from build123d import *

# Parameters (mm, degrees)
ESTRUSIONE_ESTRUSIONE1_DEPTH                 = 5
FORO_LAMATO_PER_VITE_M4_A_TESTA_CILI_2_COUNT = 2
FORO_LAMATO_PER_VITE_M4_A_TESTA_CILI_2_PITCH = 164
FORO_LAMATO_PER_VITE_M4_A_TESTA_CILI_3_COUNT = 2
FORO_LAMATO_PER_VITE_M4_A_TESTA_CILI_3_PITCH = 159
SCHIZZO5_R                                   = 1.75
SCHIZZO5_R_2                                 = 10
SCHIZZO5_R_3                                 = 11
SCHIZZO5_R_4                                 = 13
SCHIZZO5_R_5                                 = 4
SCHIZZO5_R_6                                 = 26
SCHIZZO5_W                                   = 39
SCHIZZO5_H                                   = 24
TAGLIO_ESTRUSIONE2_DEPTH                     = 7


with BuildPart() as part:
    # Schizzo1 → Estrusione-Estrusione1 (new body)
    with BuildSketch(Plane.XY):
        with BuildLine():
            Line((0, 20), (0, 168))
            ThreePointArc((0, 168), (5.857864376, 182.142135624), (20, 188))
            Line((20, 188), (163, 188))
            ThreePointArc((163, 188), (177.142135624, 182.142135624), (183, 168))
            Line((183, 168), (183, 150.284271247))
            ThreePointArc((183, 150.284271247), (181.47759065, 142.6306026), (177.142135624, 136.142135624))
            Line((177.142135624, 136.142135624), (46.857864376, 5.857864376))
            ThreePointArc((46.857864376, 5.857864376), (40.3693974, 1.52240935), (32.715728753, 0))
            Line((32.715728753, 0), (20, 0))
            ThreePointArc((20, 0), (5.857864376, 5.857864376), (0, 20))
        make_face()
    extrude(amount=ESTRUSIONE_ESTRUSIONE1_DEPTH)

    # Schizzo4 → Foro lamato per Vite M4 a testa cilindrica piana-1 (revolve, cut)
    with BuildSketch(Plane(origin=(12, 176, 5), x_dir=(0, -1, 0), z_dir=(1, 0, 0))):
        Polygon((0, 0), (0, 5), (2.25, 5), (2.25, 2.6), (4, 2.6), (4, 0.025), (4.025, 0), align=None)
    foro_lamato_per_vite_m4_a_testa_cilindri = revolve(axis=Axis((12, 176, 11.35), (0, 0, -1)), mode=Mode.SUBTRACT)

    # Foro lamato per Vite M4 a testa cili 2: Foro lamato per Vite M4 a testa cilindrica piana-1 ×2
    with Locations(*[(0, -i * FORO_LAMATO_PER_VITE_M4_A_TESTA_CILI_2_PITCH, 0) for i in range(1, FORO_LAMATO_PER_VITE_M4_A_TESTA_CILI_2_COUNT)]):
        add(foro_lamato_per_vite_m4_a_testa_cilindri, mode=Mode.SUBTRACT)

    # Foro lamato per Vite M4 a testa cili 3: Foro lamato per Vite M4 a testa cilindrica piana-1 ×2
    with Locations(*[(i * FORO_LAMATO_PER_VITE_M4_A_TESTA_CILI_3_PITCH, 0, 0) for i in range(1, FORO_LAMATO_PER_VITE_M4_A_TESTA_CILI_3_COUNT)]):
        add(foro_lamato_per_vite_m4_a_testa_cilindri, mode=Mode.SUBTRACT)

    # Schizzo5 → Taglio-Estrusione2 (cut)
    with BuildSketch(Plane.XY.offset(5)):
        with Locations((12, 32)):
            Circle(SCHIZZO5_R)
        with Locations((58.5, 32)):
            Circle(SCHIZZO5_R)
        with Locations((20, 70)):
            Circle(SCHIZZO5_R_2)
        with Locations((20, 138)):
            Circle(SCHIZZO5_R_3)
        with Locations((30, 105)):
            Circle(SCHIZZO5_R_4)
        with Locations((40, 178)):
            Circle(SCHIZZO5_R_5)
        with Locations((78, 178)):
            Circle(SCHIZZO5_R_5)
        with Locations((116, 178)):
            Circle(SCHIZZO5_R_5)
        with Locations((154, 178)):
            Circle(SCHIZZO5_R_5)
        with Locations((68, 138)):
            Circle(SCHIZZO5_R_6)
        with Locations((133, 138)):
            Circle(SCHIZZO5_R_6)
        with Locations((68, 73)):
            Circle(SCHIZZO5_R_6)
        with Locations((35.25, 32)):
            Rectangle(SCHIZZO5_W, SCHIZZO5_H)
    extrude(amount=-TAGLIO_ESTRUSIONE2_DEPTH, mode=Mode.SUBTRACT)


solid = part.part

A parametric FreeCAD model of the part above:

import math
import FreeCAD as App
import Part
import Sketcher
Q = App.Units.Quantity

doc = App.newDocument("Part")
params = doc.addObject("Spreadsheet::Sheet", "Params")
for row, (alias, value) in enumerate([
    ("sketch1_radius", "20 mm"),
    ("sketch1_width", "143 mm"),
    ("sketch1_height", "148 mm"),
    ("pad1_length", "5 mm"),
    ("sketch2_height", "5 mm"),
    ("sketch2_height2", "2.4 mm"),
    ("sketch2_width", "1.75 mm"),
    ("groove_angle", "360 deg"),
    ("linearpattern_pitch", "164 mm"),
    ("linearpattern2_pitch", "159 mm"),
    ("sketch3_diameter", "20 mm"),
    ("sketch3_diameter2", "22 mm"),
    ("sketch3_diameter3", "26 mm"),
    ("sketch3_diameter4", "8 mm"),
    ("sketch3_diameter5", "52 mm"),
    ("pocket1_length", "7 mm"),
], start=1):
    params.set(f"A{row}", alias)
    params.set(f"B{row}", "=" + value)
    params.setAlias(f"B{row}", alias)

body = doc.addObject("PartDesign::Body", "Body")

sketch1 = body.newObject("Sketcher::SketchObject", "Sketch")
sketch1.AttachmentSupport = (doc.getObject("XY_Plane"), [""])
sketch1.MapMode = "FlatFace"
sketch1.addGeometry(Part.LineSegment(App.Vector(0, 168, 0), App.Vector(0, 20, 0)), False)
sketch1.addGeometry(Part.ArcOfCircle(Part.Circle(App.Vector(20, 20, 0), App.Vector(0, 0, 1), 20), math.radians(180), math.radians(270)), False)
sketch1.addGeometry(Part.LineSegment(App.Vector(20, 0, 0), App.Vector(32.715729, 0, 0)), False)
sketch1.addGeometry(Part.ArcOfCircle(Part.Circle(App.Vector(32.715729, 20, 0), App.Vector(0, 0, 1), 20), math.radians(-90), math.radians(-45)), False)
sketch1.addGeometry(Part.LineSegment(App.Vector(46.857864, 5.857864, 0), App.Vector(177.142136, 136.142136, 0)), False)
sketch1.addGeometry(Part.ArcOfCircle(Part.Circle(App.Vector(163, 150.284271, 0), App.Vector(0, 0, 1), 20), math.radians(-45), math.radians(0)), False)
sketch1.addGeometry(Part.LineSegment(App.Vector(183, 150.284271, 0), App.Vector(183, 168, 0)), False)
sketch1.addGeometry(Part.ArcOfCircle(Part.Circle(App.Vector(163, 168, 0), App.Vector(0, 0, 1), 20), math.radians(0), math.radians(90)), False)
sketch1.addGeometry(Part.LineSegment(App.Vector(163, 188, 0), App.Vector(20, 188, 0)), False)
sketch1.addGeometry(Part.ArcOfCircle(Part.Circle(App.Vector(20, 168, 0), App.Vector(0, 0, 1), 20), math.radians(90), math.radians(180)), False)
sketch1.addConstraint(Sketcher.Constraint("Tangent", 0, 2, 1, 1))
sketch1.addConstraint(Sketcher.Constraint("Tangent", 1, 2, 2, 1))
sketch1.addConstraint(Sketcher.Constraint("Tangent", 2, 2, 3, 1))
sketch1.addConstraint(Sketcher.Constraint("Tangent", 3, 2, 4, 1))
sketch1.addConstraint(Sketcher.Constraint("Tangent", 4, 2, 5, 1))
sketch1.addConstraint(Sketcher.Constraint("Tangent", 5, 2, 6, 1))
sketch1.addConstraint(Sketcher.Constraint("Tangent", 6, 2, 7, 1))
sketch1.addConstraint(Sketcher.Constraint("Tangent", 7, 2, 8, 1))
sketch1.addConstraint(Sketcher.Constraint("Tangent", 8, 2, 9, 1))
sketch1.addConstraint(Sketcher.Constraint("Tangent", 9, 2, 0, 1))
sketch1.addConstraint(Sketcher.Constraint("Vertical", 0))
sketch1.addConstraint(Sketcher.Constraint("Horizontal", 2))
sketch1.addConstraint(Sketcher.Constraint("Vertical", 6))
sketch1.addConstraint(Sketcher.Constraint("Horizontal", 8))
sketch1.addConstraint(Sketcher.Constraint("Equal", 1, 3))
sketch1.addConstraint(Sketcher.Constraint("Equal", 3, 5))
sketch1.addConstraint(Sketcher.Constraint("Equal", 5, 7))
sketch1.addConstraint(Sketcher.Constraint("Equal", 7, 9))
sketch1.addConstraint(Sketcher.Constraint("PointOnObject", 0, 2, -2))
sketch1.addConstraint(Sketcher.Constraint("PointOnObject", 1, 2, -1))
sketch1.addConstraint(Sketcher.Constraint("Radius", 1, Q("20 mm")))
sketch1.addConstraint(Sketcher.Constraint("DistanceX", 8, 2, 8, 1, Q("143 mm")))
sketch1.addConstraint(Sketcher.Constraint("DistanceY", 0, 2, 0, 1, Q("148 mm")))
sketch1.addConstraint(Sketcher.Constraint("Angle", 4, Q("45 deg")))
sketch1.addConstraint(Sketcher.Constraint("DistanceX", 2, 1, 2, 2, Q("12.715729 mm")))
sketch1.setExpression("Constraints[20]", "Params.sketch1_radius")
sketch1.setExpression("Constraints[21]", "Params.sketch1_width")
sketch1.setExpression("Constraints[22]", "Params.sketch1_height")
pad1 = body.newObject("PartDesign::Pad", "Pad")
pad1.Profile = sketch1
pad1.setExpression("Length", "Params.pad1_length")

sketch2 = body.newObject("Sketcher::SketchObject", "Sketch001")
sketch2.AttachmentSupport = (doc.getObject("YZ_Plane"), [""])
sketch2.MapMode = "FlatFace"
sketch2.AttachmentOffset = App.Placement(App.Vector(0, 0, 12), App.Rotation())
sketch2.addGeometry(Part.LineSegment(App.Vector(176, 0, 0), App.Vector(176, 5, 0)), False)
sketch2.addGeometry(Part.LineSegment(App.Vector(176, 5, 0), App.Vector(171.975, 5, 0)), False)
sketch2.addGeometry(Part.LineSegment(App.Vector(171.975, 5, 0), App.Vector(172, 4.975, 0)), False)
sketch2.addGeometry(Part.LineSegment(App.Vector(172, 4.975, 0), App.Vector(172, 2.4, 0)), False)
sketch2.addGeometry(Part.LineSegment(App.Vector(172, 2.4, 0), App.Vector(173.75, 2.4, 0)), False)
sketch2.addGeometry(Part.LineSegment(App.Vector(173.75, 2.4, 0), App.Vector(173.75, 0, 0)), False)
sketch2.addGeometry(Part.LineSegment(App.Vector(173.75, 0, 0), App.Vector(176, 0, 0)), False)
sketch2.addGeometry(Part.LineSegment(App.Vector(176, 5, 0), App.Vector(176, 0, 0)), True)
sketch2.addConstraint(Sketcher.Constraint("Coincident", 0, 2, 1, 1))
sketch2.addConstraint(Sketcher.Constraint("Coincident", 1, 2, 2, 1))
sketch2.addConstraint(Sketcher.Constraint("Coincident", 2, 2, 3, 1))
sketch2.addConstraint(Sketcher.Constraint("Coincident", 3, 2, 4, 1))
sketch2.addConstraint(Sketcher.Constraint("Coincident", 4, 2, 5, 1))
sketch2.addConstraint(Sketcher.Constraint("Coincident", 5, 2, 6, 1))
sketch2.addConstraint(Sketcher.Constraint("Coincident", 6, 2, 0, 1))
sketch2.addConstraint(Sketcher.Constraint("Vertical", 0))
sketch2.addConstraint(Sketcher.Constraint("Horizontal", 1))
sketch2.addConstraint(Sketcher.Constraint("Vertical", 3))
sketch2.addConstraint(Sketcher.Constraint("Horizontal", 4))
sketch2.addConstraint(Sketcher.Constraint("Vertical", 5))
sketch2.addConstraint(Sketcher.Constraint("Horizontal", 6))
sketch2.addConstraint(Sketcher.Constraint("Vertical", 7))
sketch2.addConstraint(Sketcher.Constraint("Coincident", 7, 1, 0, 2))
sketch2.addConstraint(Sketcher.Constraint("PointOnObject", 5, 2, -1))
sketch2.addConstraint(Sketcher.Constraint("PointOnObject", 7, 2, -1))
sketch2.addConstraint(Sketcher.Constraint("DistanceY", 0, 1, 0, 2, Q("5 mm")))
sketch2.addConstraint(Sketcher.Constraint("Angle", 2, Q("-45 deg")))
sketch2.addConstraint(Sketcher.Constraint("DistanceY", 5, 2, 5, 1, Q("2.4 mm")))
sketch2.addConstraint(Sketcher.Constraint("DistanceX", -1, 1, 0, 2, Q("176 mm")))
sketch2.addConstraint(Sketcher.Constraint("DistanceX", -1, 1, 2, 2, Q("172 mm")))
sketch2.addConstraint(Sketcher.Constraint("DistanceX", 4, 1, 4, 2, Q("1.75 mm")))
sketch2.addConstraint(Sketcher.Constraint("DistanceX", 1, 2, 1, 1, Q("4.025 mm")))
sketch2.setExpression("Constraints[17]", "Params.sketch2_height")
sketch2.setExpression("Constraints[19]", "Params.sketch2_height2")
sketch2.setExpression("Constraints[22]", "Params.sketch2_width")
groove = body.newObject("PartDesign::Groove", "Groove")
groove.Profile = sketch2
groove.ReferenceAxis = (sketch2, ["Axis0"])
groove.setExpression("Angle", "Params.groove_angle")
doc.recompute()

linearpattern = body.newObject("PartDesign::LinearPattern", "LinearPattern")
linearpattern.Originals = [groove]
linearpattern.Direction = (doc.getObject("Y_Axis"), [""])
linearpattern.Mode = "offset"
linearpattern.setExpression("Offset", "Params.linearpattern_pitch")
linearpattern.Occurrences = 2
linearpattern.Reversed = True
body.Tip = linearpattern
doc.recompute()

linearpattern2 = body.newObject("PartDesign::LinearPattern", "LinearPattern001")
linearpattern2.Originals = [groove]
linearpattern2.Direction = (doc.getObject("X_Axis"), [""])
linearpattern2.Mode = "offset"
linearpattern2.setExpression("Offset", "Params.linearpattern2_pitch")
linearpattern2.Occurrences = 2
body.Tip = linearpattern2

sketch3 = body.newObject("Sketcher::SketchObject", "Sketch002")
sketch3.AttachmentSupport = (doc.getObject("XY_Plane"), [""])
sketch3.MapMode = "FlatFace"
sketch3.AttachmentOffset = App.Placement(App.Vector(0, 0, 5), App.Rotation())
sketch3.addGeometry(Part.Circle(App.Vector(12, 32, 0), App.Vector(0, 0, 1), 1.75), False)
sketch3.addGeometry(Part.Circle(App.Vector(58.5, 32, 0), App.Vector(0, 0, 1), 1.75), False)
sketch3.addGeometry(Part.Circle(App.Vector(20, 70, 0), App.Vector(0, 0, 1), 10), False)
sketch3.addGeometry(Part.Circle(App.Vector(20, 138, 0), App.Vector(0, 0, 1), 11), False)
sketch3.addGeometry(Part.Circle(App.Vector(30, 105, 0), App.Vector(0, 0, 1), 13), False)
sketch3.addGeometry(Part.Circle(App.Vector(40, 178, 0), App.Vector(0, 0, 1), 4), False)
sketch3.addGeometry(Part.Circle(App.Vector(78, 178, 0), App.Vector(0, 0, 1), 4), False)
sketch3.addGeometry(Part.Circle(App.Vector(116, 178, 0), App.Vector(0, 0, 1), 4), False)
sketch3.addGeometry(Part.Circle(App.Vector(154, 178, 0), App.Vector(0, 0, 1), 4), False)
sketch3.addGeometry(Part.Circle(App.Vector(68, 138, 0), App.Vector(0, 0, 1), 26), False)
sketch3.addGeometry(Part.Circle(App.Vector(133, 138, 0), App.Vector(0, 0, 1), 26), False)
sketch3.addGeometry(Part.Circle(App.Vector(68, 73, 0), App.Vector(0, 0, 1), 26), False)
sketch3.addGeometry(Part.LineSegment(App.Vector(15.75, 44, 0), App.Vector(15.75, 20, 0)), False)
sketch3.addGeometry(Part.LineSegment(App.Vector(15.75, 20, 0), App.Vector(54.75, 20, 0)), False)
sketch3.addGeometry(Part.LineSegment(App.Vector(54.75, 20, 0), App.Vector(54.75, 44, 0)), False)
sketch3.addGeometry(Part.LineSegment(App.Vector(54.75, 44, 0), App.Vector(15.75, 44, 0)), False)
sketch3.addConstraint(Sketcher.Constraint("Coincident", 12, 2, 13, 1))
sketch3.addConstraint(Sketcher.Constraint("Coincident", 13, 2, 14, 1))
sketch3.addConstraint(Sketcher.Constraint("Coincident", 14, 2, 15, 1))
sketch3.addConstraint(Sketcher.Constraint("Coincident", 15, 2, 12, 1))
sketch3.addConstraint(Sketcher.Constraint("Vertical", 12))
sketch3.addConstraint(Sketcher.Constraint("Horizontal", 13))
sketch3.addConstraint(Sketcher.Constraint("Vertical", 14))
sketch3.addConstraint(Sketcher.Constraint("Horizontal", 15))
sketch3.addConstraint(Sketcher.Constraint("Equal", 0, 1))
sketch3.addConstraint(Sketcher.Constraint("Equal", 5, 6))
sketch3.addConstraint(Sketcher.Constraint("Equal", 6, 7))
sketch3.addConstraint(Sketcher.Constraint("Equal", 7, 8))
sketch3.addConstraint(Sketcher.Constraint("Equal", 9, 10))
sketch3.addConstraint(Sketcher.Constraint("Equal", 10, 11))
sketch3.addConstraint(Sketcher.Constraint("Horizontal", 0, 3, 1, 3))
sketch3.addConstraint(Sketcher.Constraint("Horizontal", 5, 3, 6, 3))
sketch3.addConstraint(Sketcher.Constraint("Horizontal", 6, 3, 7, 3))
sketch3.addConstraint(Sketcher.Constraint("Horizontal", 7, 3, 8, 3))
sketch3.addConstraint(Sketcher.Constraint("Horizontal", 3, 3, 9, 3))
sketch3.addConstraint(Sketcher.Constraint("Horizontal", 9, 3, 10, 3))
sketch3.addConstraint(Sketcher.Constraint("Vertical", 2, 3, 3, 3))
sketch3.addConstraint(Sketcher.Constraint("Vertical", 9, 3, 11, 3))
sketch3.addConstraint(Sketcher.Constraint("Diameter", 2, Q("20 mm")))
sketch3.addConstraint(Sketcher.Constraint("Diameter", 3, Q("22 mm")))
sketch3.addConstraint(Sketcher.Constraint("Diameter", 4, Q("26 mm")))
sketch3.addConstraint(Sketcher.Constraint("Diameter", 5, Q("8 mm")))
sketch3.addConstraint(Sketcher.Constraint("Diameter", 9, Q("52 mm")))
sketch3.addConstraint(Sketcher.Constraint("Diameter", 0, Q("3.5 mm")))
sketch3.addConstraint(Sketcher.Constraint("DistanceX", 13, 1, 13, 2, Q("39 mm")))
sketch3.addConstraint(Sketcher.Constraint("DistanceY", 12, 2, 12, 1, Q("24 mm")))
sketch3.addConstraint(Sketcher.Constraint("DistanceX", -1, 1, 0, 3, Q("12 mm")))
sketch3.addConstraint(Sketcher.Constraint("DistanceY", -1, 1, 0, 3, Q("32 mm")))
sketch3.addConstraint(Sketcher.Constraint("DistanceX", -1, 1, 2, 3, Q("20 mm")))
sketch3.addConstraint(Sketcher.Constraint("DistanceY", -1, 1, 2, 3, Q("70 mm")))
sketch3.addConstraint(Sketcher.Constraint("DistanceY", -1, 1, 3, 3, Q("138 mm")))
sketch3.addConstraint(Sketcher.Constraint("DistanceX", -1, 1, 4, 3, Q("30 mm")))
sketch3.addConstraint(Sketcher.Constraint("DistanceY", -1, 1, 4, 3, Q("105 mm")))
sketch3.addConstraint(Sketcher.Constraint("DistanceX", -1, 1, 5, 3, Q("40 mm")))
sketch3.addConstraint(Sketcher.Constraint("DistanceY", -1, 1, 5, 3, Q("178 mm")))
sketch3.addConstraint(Sketcher.Constraint("DistanceX", -1, 1, 6, 3, Q("78 mm")))
sketch3.addConstraint(Sketcher.Constraint("DistanceX", -1, 1, 7, 3, Q("116 mm")))
sketch3.addConstraint(Sketcher.Constraint("DistanceX", -1, 1, 8, 3, Q("154 mm")))
sketch3.addConstraint(Sketcher.Constraint("DistanceX", -1, 1, 9, 3, Q("68 mm")))
sketch3.addConstraint(Sketcher.Constraint("DistanceX", -1, 1, 10, 3, Q("133 mm")))
sketch3.addConstraint(Sketcher.Constraint("DistanceY", -1, 1, 11, 3, Q("73 mm")))
sketch3.addConstraint(Sketcher.Constraint("DistanceY", -1, 1, 12, 2, Q("20 mm")))
sketch3.addConstraint(Sketcher.Constraint("DistanceX", -1, 1, 1, 3, Q("58.5 mm")))
sketch3.addConstraint(Sketcher.Constraint("DistanceX", -1, 1, 12, 2, Q("15.75 mm")))
sketch3.setExpression("Constraints[22]", "Params.sketch3_diameter")
sketch3.setExpression("Constraints[23]", "Params.sketch3_diameter2")
sketch3.setExpression("Constraints[24]", "Params.sketch3_diameter3")
sketch3.setExpression("Constraints[25]", "Params.sketch3_diameter4")
sketch3.setExpression("Constraints[26]", "Params.sketch3_diameter5")
pocket1 = body.newObject("PartDesign::Pocket", "Pocket")
pocket1.Profile = sketch3
pocket1.setExpression("Length", "Params.pocket1_length")

doc.recompute()
